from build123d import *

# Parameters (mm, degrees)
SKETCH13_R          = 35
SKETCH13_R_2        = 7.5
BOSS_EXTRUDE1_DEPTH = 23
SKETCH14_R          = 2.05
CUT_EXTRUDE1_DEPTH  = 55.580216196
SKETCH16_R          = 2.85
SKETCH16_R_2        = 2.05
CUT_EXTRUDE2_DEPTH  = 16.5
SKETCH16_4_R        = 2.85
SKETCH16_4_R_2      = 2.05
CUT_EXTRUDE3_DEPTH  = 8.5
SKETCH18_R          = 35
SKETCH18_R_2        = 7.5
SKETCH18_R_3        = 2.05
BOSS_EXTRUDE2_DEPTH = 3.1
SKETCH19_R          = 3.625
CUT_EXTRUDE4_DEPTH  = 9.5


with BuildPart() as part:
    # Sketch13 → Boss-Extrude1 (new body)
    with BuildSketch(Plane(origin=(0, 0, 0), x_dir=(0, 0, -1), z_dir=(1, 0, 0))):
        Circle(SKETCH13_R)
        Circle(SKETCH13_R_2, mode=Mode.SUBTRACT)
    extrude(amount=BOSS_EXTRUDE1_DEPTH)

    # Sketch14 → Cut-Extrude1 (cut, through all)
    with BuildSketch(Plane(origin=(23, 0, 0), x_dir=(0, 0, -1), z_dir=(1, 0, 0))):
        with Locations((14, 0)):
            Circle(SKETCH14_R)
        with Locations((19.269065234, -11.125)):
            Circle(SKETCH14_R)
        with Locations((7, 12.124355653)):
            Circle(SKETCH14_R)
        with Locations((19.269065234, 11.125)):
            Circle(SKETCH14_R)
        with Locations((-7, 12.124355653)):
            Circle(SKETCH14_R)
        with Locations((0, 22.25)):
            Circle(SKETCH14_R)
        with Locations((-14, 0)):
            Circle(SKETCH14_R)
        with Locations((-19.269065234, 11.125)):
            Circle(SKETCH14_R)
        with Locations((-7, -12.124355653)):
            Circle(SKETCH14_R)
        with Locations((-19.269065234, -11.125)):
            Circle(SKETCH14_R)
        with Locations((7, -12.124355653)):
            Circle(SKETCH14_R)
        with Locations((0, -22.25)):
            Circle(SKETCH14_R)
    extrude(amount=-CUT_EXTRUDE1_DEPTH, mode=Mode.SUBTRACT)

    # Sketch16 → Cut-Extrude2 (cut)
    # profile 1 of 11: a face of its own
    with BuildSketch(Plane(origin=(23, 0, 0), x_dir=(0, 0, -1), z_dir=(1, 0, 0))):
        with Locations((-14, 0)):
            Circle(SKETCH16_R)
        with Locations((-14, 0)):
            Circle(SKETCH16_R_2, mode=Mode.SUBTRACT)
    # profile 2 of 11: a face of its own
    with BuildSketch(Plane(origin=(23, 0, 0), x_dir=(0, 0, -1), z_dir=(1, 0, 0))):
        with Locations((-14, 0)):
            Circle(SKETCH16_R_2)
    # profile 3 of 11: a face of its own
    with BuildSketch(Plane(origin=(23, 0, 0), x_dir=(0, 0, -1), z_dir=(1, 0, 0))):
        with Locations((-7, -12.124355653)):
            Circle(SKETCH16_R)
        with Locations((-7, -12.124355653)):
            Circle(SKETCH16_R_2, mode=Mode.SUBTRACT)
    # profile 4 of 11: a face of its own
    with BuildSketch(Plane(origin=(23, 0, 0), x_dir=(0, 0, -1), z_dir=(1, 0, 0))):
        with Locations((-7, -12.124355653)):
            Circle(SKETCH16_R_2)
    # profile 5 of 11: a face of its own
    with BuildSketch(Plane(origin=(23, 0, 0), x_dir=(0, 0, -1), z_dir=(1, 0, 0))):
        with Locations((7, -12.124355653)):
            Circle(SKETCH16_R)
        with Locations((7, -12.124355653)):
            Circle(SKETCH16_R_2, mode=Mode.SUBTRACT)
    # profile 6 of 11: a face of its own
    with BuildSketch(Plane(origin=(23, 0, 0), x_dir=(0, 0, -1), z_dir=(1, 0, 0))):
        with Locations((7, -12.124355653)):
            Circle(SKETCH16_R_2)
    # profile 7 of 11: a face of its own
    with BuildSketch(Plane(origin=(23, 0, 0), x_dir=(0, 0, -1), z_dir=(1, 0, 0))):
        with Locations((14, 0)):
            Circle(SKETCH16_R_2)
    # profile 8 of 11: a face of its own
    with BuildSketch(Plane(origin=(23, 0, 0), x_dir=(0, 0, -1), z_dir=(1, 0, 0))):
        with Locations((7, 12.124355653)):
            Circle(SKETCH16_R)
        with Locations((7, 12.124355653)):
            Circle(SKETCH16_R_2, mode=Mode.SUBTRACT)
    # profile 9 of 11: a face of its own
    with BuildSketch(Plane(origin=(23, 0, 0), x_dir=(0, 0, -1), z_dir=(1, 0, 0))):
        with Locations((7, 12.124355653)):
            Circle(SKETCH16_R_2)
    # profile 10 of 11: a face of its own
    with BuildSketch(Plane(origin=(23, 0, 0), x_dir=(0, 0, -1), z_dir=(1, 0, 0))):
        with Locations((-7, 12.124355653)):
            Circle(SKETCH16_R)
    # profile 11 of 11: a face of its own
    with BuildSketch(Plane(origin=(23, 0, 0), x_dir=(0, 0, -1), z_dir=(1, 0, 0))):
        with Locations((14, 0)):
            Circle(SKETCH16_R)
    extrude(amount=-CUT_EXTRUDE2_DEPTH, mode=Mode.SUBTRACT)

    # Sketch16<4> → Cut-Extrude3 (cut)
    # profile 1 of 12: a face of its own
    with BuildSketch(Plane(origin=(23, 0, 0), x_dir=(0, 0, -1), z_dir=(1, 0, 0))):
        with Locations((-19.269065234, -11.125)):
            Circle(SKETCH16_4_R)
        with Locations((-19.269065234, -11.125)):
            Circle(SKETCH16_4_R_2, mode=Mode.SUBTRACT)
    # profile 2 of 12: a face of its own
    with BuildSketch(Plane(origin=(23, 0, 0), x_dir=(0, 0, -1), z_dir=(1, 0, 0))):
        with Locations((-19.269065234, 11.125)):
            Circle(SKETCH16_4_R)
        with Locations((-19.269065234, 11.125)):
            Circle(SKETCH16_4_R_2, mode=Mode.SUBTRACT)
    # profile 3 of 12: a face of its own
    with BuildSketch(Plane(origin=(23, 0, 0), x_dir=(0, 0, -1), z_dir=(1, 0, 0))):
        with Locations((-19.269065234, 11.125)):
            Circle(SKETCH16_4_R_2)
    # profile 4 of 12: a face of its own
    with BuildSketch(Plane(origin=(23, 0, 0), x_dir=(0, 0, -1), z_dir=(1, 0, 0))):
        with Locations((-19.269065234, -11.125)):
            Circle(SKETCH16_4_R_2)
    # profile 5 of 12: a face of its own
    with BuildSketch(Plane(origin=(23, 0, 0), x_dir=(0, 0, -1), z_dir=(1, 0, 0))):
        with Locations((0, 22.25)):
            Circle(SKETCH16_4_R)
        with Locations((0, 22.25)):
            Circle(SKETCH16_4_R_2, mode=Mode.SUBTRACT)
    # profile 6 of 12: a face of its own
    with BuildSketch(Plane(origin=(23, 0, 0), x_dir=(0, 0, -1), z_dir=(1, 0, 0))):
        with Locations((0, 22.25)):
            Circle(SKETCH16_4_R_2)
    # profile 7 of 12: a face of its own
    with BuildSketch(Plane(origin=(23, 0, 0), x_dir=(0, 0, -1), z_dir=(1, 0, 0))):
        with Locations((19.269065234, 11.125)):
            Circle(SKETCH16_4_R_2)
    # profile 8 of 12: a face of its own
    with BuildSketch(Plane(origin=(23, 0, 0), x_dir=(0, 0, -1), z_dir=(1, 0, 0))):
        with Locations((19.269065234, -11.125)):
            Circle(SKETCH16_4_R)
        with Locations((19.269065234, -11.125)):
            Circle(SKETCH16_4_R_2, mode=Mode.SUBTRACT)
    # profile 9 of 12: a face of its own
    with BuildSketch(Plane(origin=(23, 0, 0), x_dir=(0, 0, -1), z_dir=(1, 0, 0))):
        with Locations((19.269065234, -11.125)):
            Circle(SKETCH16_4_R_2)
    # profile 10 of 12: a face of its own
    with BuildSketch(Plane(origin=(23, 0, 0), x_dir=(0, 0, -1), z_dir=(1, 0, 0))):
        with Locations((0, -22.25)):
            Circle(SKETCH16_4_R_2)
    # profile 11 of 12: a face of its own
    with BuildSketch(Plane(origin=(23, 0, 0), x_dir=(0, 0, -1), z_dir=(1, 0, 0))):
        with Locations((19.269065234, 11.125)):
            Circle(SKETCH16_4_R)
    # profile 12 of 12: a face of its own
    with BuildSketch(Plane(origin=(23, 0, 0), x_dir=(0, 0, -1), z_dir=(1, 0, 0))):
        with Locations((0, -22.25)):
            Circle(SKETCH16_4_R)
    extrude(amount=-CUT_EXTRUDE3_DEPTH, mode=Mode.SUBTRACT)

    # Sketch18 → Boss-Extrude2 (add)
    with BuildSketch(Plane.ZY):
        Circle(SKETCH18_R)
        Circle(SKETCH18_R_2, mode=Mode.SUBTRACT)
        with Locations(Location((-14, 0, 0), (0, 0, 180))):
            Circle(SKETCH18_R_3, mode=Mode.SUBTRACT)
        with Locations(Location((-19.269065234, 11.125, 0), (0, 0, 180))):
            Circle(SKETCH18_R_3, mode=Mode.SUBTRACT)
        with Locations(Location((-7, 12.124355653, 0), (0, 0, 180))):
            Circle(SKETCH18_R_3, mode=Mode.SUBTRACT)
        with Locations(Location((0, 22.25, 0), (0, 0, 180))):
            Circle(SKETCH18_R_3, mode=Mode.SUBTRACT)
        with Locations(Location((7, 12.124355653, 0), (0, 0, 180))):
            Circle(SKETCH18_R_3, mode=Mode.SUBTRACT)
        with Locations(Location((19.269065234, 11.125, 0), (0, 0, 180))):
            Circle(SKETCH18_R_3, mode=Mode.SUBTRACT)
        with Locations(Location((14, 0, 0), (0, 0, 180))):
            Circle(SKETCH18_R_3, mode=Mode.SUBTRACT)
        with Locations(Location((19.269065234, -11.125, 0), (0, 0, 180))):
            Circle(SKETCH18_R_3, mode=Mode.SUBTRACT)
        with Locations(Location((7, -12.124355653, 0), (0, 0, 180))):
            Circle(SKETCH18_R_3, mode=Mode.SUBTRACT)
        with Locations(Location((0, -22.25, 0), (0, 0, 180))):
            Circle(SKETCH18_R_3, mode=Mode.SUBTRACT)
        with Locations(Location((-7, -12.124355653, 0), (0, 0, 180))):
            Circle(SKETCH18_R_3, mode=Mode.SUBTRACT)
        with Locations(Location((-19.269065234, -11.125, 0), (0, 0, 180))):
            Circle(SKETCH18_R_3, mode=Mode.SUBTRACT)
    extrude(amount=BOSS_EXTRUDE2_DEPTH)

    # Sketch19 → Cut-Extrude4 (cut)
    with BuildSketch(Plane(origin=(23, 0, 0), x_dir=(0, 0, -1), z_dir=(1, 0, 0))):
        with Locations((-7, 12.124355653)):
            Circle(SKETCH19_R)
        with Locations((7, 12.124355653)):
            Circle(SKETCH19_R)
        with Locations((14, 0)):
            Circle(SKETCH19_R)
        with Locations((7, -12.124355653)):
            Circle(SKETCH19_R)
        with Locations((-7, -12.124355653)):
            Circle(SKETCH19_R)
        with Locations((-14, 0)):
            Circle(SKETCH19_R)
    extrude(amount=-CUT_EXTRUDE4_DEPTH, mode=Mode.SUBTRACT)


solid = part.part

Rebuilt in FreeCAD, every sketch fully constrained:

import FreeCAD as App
import Part
import Sketcher

doc = App.newDocument("Part")
body = doc.addObject("PartDesign::Body", "Body")

# Sketch on YZ plane
sketch1 = body.newObject("Sketcher::SketchObject", "Sketch")
sketch1.AttachmentSupport = (doc.getObject("YZ_Plane"), [""])
sketch1.MapMode = "FlatFace"
sketch1.addGeometry([
    Part.Circle(App.Vector(0, 0, 0), App.Vector(0, 0, 1), 35),
    Part.Circle(App.Vector(0, 0, 0), App.Vector(0, 0, 1), 8),
], False)
sketch1.addConstraint([
    Sketcher.Constraint("Coincident", 0, 3, -1, 1),
    Sketcher.Constraint("Coincident", 1, 3, -1, 1),
    Sketcher.Constraint("Diameter", 0, 70.0),
    Sketcher.Constraint("Diameter", 1, 15.0),
])
pad1 = body.newObject("PartDesign::Pad", "Pad")
pad1.Profile = sketch1
pad1.Length = 23

# Sketch on YZ plane
sketch2 = body.newObject("Sketcher::SketchObject", "Sketch001")
sketch2.AttachmentSupport = (doc.getObject("YZ_Plane"), [""])
sketch2.MapMode = "FlatFace"
sketch2.AttachmentOffset = App.Placement(App.Vector(0, 0, 23), App.Rotation())
sketch2.addGeometry([
    Part.Circle(App.Vector(0, -14, 0), App.Vector(0, 0, 1), 2),  # 0
    Part.Circle(App.Vector(-11.1, -19.3, 0), App.Vector(0, 0, 1), 2),  # 1
    Part.Circle(App.Vector(12.1, -7, 0), App.Vector(0, 0, 1), 2),  # 2
    Part.Circle(App.Vector(11.1, -19.3, 0), App.Vector(0, 0, 1), 2),  # 3
    Part.Circle(App.Vector(12.1, 7, 0), App.Vector(0, 0, 1), 2),  # 4
    Part.Circle(App.Vector(22.2, 0, 0), App.Vector(0, 0, 1), 2),  # 5
    Part.Circle(App.Vector(0, 14, 0), App.Vector(0, 0, 1), 2),  # 6
    Part.Circle(App.Vector(11.1, 19.3, 0), App.Vector(0, 0, 1), 2),  # 7
    Part.Circle(App.Vector(-12.1, 7, 0), App.Vector(0, 0, 1), 2),  # 8
    Part.Circle(App.Vector(-11.1, 19.3, 0), App.Vector(0, 0, 1), 2),  # 9
    Part.Circle(App.Vector(-12.1, -7, 0), App.Vector(0, 0, 1), 2),  # 10
    Part.Circle(App.Vector(-22.2, 0, 0), App.Vector(0, 0, 1), 2),  # 11
], False)
sketch2.addConstraint([
    Sketcher.Constraint("Equal", 0, 1),
    Sketcher.Constraint("Equal", 1, 2),
    Sketcher.Constraint("Equal", 2, 3),
    Sketcher.Constraint("Equal", 3, 4),
    Sketcher.Constraint("Equal", 4, 5),
    Sketcher.Constraint("Equal", 5, 6),
    Sketcher.Constraint("Equal", 6, 7),
    Sketcher.Constraint("Equal", 7, 8),
    Sketcher.Constraint("Equal", 8, 9),
    Sketcher.Constraint("Equal", 9, 10),
    Sketcher.Constraint("Equal", 10, 11),
    Sketcher.Constraint("Symmetric", 0, 3, 6, 3, -1, 1),
    Sketcher.Constraint("Symmetric", 1, 3, 7, 3, -1, 1),
    Sketcher.Constraint("Symmetric", 2, 3, 8, 3, -1, 1),
    Sketcher.Constraint("Symmetric", 3, 3, 9, 3, -1, 1),
    Sketcher.Constraint("Symmetric", 4, 3, 10, 3, -1, 1),
    Sketcher.Constraint("Symmetric", 5, 3, 11, 3, -1, 1),
    Sketcher.Constraint("Symmetric", 1, 3, 3, 3, -2),
    Sketcher.Constraint("Symmetric", 4, 3, 8, 3, -2),
    Sketcher.Constraint("PointOnObject", 0, 3, -2),
    Sketcher.Constraint("PointOnObject", 5, 3, -1),
    Sketcher.Constraint("Diameter", 0, 4.1),
    Sketcher.Constraint("DistanceY", 0, 3, -1, 1, 14.0),
    Sketcher.Constraint("DistanceY", 2, 3, -1, 1, 7.0),
    Sketcher.Constraint("DistanceX", -1, 1, 5, 3, 22.25),
    Sketcher.Constraint("DistanceX", 1, 3, 3, 3, 22.25),
    Sketcher.Constraint("DistanceX", 8, 3, 4, 3, 24.248711),
    Sketcher.Constraint("DistanceY", 1, 3, -1, 1, 19.269065),
])
pocket1 = body.newObject("PartDesign::Pocket", "Pocket")
pocket1.Profile = sketch2
pocket1.Type = "ThroughAll"

# Sketch on YZ plane
sketch3 = body.newObject("Sketcher::SketchObject", "Sketch002")
sketch3.AttachmentSupport = (doc.getObject("YZ_Plane"), [""])
sketch3.MapMode = "FlatFace"
sketch3.AttachmentOffset = App.Placement(App.Vector(0, 0, 23), App.Rotation())
sketch3.addGeometry([
    Part.Circle(App.Vector(0, 14, 0), App.Vector(0, 0, 1), 2.9),  # 0
    Part.Circle(App.Vector(-12.1, 7, 0), App.Vector(0, 0, 1), 2.9),  # 1
    Part.Circle(App.Vector(-12.1, -7, 0), App.Vector(0, 0, 1), 2.9),  # 2
    Part.Circle(App.Vector(0, -14, 0), App.Vector(0, 0, 1), 2.9),  # 3
    Part.Circle(App.Vector(12.1, -7, 0), App.Vector(0, 0, 1), 2.9),  # 4
    Part.Circle(App.Vector(12.1, 7, 0), App.Vector(0, 0, 1), 2.9),  # 5
], False)
sketch3.addConstraint([
    Sketcher.Constraint("Equal", 0, 1),
    Sketcher.Constraint("Equal", 1, 2),
    Sketcher.Constraint("Equal", 2, 3),
    Sketcher.Constraint("Equal", 3, 4),
    Sketcher.Constraint("Equal", 4, 5),
    Sketcher.Constraint("Symmetric", 0, 3, 3, 3, -1, 1),
    Sketcher.Constraint("Symmetric", 1, 3, 4, 3, -1, 1),
    Sketcher.Constraint("Symmetric", 2, 3, 5, 3, -1, 1),
    Sketcher.Constraint("Symmetric", 2, 3, 4, 3, -2),
    Sketcher.Constraint("PointOnObject", 0, 3, -2),
    Sketcher.Constraint("Diameter", 0, 5.7),
    Sketcher.Constraint("DistanceY", -1, 1, 0, 3, 14.0),
    Sketcher.Constraint("DistanceY", -1, 1, 1, 3, 7.0),
    Sketcher.Constraint("DistanceX", 2, 3, 4, 3, 24.248711),
])
pocket2 = body.newObject("PartDesign::Pocket", "Pocket001")
pocket2.Profile = sketch3
pocket2.Length = 16.5

# Sketch on YZ plane
sketch4 = body.newObject("Sketcher::SketchObject", "Sketch003")
sketch4.AttachmentSupport = (doc.getObject("YZ_Plane"), [""])
sketch4.MapMode = "FlatFace"
sketch4.AttachmentOffset = App.Placement(App.Vector(0, 0, 23), App.Rotation())
sketch4.addGeometry([
    Part.Circle(App.Vector(-11.1, 19.3, 0), App.Vector(0, 0, 1), 2.9),  # 0
    Part.Circle(App.Vector(11.1, 19.3, 0), App.Vector(0, 0, 1), 2.9),  # 1
    Part.Circle(App.Vector(22.2, 0, 0), App.Vector(0, 0, 1), 2.9),  # 2
    Part.Circle(App.Vector(11.1, -19.3, 0), App.Vector(0, 0, 1), 2.9),  # 3
    Part.Circle(App.Vector(-11.1, -19.3, 0), App.Vector(0, 0, 1), 2.9),  # 4
    Part.Circle(App.Vector(-22.2, 0, 0), App.Vector(0, 0, 1), 2.9),  # 5
], False)
sketch4.addConstraint([
    Sketcher.Constraint("Equal", 0, 1),
    Sketcher.Constraint("Equal", 1, 2),
    Sketcher.Constraint("Equal", 2, 3),
    Sketcher.Constraint("Equal", 3, 4),
    Sketcher.Constraint("Equal", 4, 5),
    Sketcher.Constraint("Symmetric", 0, 3, 3, 3, -1, 1),
    Sketcher.Constraint("Symmetric", 1, 3, 4, 3, -1, 1),
    Sketcher.Constraint("Symmetric", 2, 3, 5, 3, -1, 1),
    Sketcher.Constraint("Symmetric", 0, 3, 1, 3, -2),
    Sketcher.Constraint("PointOnObject", 2, 3, -1),
    Sketcher.Constraint("Diameter", 0, 5.7),
    Sketcher.Constraint("DistanceX", 5, 3, 2, 3, 44.5),
    Sketcher.Constraint("DistanceX", 0, 3, 1, 3, 22.25),
    Sketcher.Constraint("DistanceY", 3, 3, 1, 3, 38.53813),
])
pocket3 = body.newObject("PartDesign::Pocket", "Pocket002")
pocket3.Profile = sketch4
pocket3.Length = 8.5

# Sketch on YZ plane
sketch5 = body.newObject("Sketcher::SketchObject", "Sketch004")
sketch5.AttachmentSupport = (doc.getObject("YZ_Plane"), [""])
sketch5.MapMode = "FlatFace"
sketch5.addGeometry([
    Part.Circle(App.Vector(0, 0, 0), App.Vector(0, 0, 1), 35),  # 0
    Part.Circle(App.Vector(-22.2, 0, 0), App.Vector(0, 0, 1), 2),  # 1
    Part.Circle(App.Vector(-11.1, -19.3, 0), App.Vector(0, 0, 1), 2),  # 2
    Part.Circle(App.Vector(-12.1, -7, 0), App.Vector(0, 0, 1), 2),  # 3
    Part.Circle(App.Vector(-12.1, 7, 0), App.Vector(0, 0, 1), 2),  # 4
    Part.Circle(App.Vector(-11.1, 19.3, 0), App.Vector(0, 0, 1), 2),  # 5
    Part.Circle(App.Vector(0, -14, 0), App.Vector(0, 0, 1), 2),  # 6
    Part.Circle(App.Vector(11.1, -19.3, 0), App.Vector(0, 0, 1), 2),  # 7
    Part.Circle(App.Vector(0, 0, 0), App.Vector(0, 0, 1), 7.5),  # 8
    Part.Circle(App.Vector(12.1, -7, 0), App.Vector(0, 0, 1), 2),  # 9
    Part.Circle(App.Vector(22.2, 0, 0), App.Vector(0, 0, 1), 2),  # 10
    Part.Circle(App.Vector(12.1, 7, 0), App.Vector(0, 0, 1), 2),  # 11
    Part.Circle(App.Vector(0, 14, 0), App.Vector(0, 0, 1), 2),  # 12
    Part.Circle(App.Vector(11.1, 19.3, 0), App.Vector(0, 0, 1), 2),  # 13
], False)
sketch5.addConstraint([
    Sketcher.Constraint("Coincident", 0, 3, -1, 1),
    Sketcher.Constraint("Coincident", 8, 3, -1, 1),
    Sketcher.Constraint("Equal", 1, 2),
    Sketcher.Constraint("Equal", 2, 3),
    Sketcher.Constraint("Equal", 3, 4),
    Sketcher.Constraint("Equal", 4, 5),
    Sketcher.Constraint("Equal", 5, 6),
    Sketcher.Constraint("Equal", 6, 7),
    Sketcher.Constraint("Equal", 7, 9),
    Sketcher.Constraint("Equal", 9, 10),
    Sketcher.Constraint("Equal", 10, 11),
    Sketcher.Constraint("Equal", 11, 12),
    Sketcher.Constraint("Equal", 12, 13),
    Sketcher.Constraint("Symmetric", 5, 3, 7, 3, -1, 1),
    Sketcher.Constraint("Symmetric", 4, 3, 9, 3, -1, 1),
    Sketcher.Constraint("Symmetric", 1, 3, 10, 3, -1, 1),
    Sketcher.Constraint("Symmetric", 3, 3, 11, 3, -1, 1),
    Sketcher.Constraint("Symmetric", 6, 3, 12, 3, -1, 1),
    Sketcher.Constraint("Symmetric", 2, 3, 13, 3, -1, 1),
    Sketcher.Constraint("Symmetric", 2, 3, 7, 3, -2),
    Sketcher.Constraint("Symmetric", 3, 3, 9, 3, -2),
    Sketcher.Constraint("PointOnObject", 1, 3, -1),
    Sketcher.Constraint("PointOnObject", 6, 3, -2),
    Sketcher.Constraint("Diameter", 0, 70.0),
    Sketcher.Constraint("Diameter", 8, 15.0),
    Sketcher.Constraint("Diameter", 1, 4.1),
    Sketcher.Constraint("DistanceY", 3, 3, -1, 1, 7.0),
    Sketcher.Constraint("DistanceY", 6, 3, -1, 1, 14.0),
    Sketcher.Constraint("DistanceX", 1, 3, -1, 1, 22.25),
    Sketcher.Constraint("DistanceX", 2, 3, 7, 3, 22.25),
    Sketcher.Constraint("DistanceY", 2, 3, 5, 3, 38.53813),
    Sketcher.Constraint("DistanceX", 3, 3, 9, 3, 24.248711),
])
pad2 = body.newObject("PartDesign::Pad", "Pad001")
pad2.Profile = sketch5
pad2.Length = 3.1
pad2.Reversed = True

# Sketch on YZ plane
sketch6 = body.newObject("Sketcher::SketchObject", "Sketch005")
sketch6.AttachmentSupport = (doc.getObject("YZ_Plane"), [""])
sketch6.MapMode = "FlatFace"
sketch6.AttachmentOffset = App.Placement(App.Vector(0, 0, 23), App.Rotation())
sketch6.addGeometry([
    Part.Circle(App.Vector(12.1, 7, 0), App.Vector(0, 0, 1), 3.6),  # 0
    Part.Circle(App.Vector(12.1, -7, 0), App.Vector(0, 0, 1), 3.6),  # 1
    Part.Circle(App.Vector(0, -14, 0), App.Vector(0, 0, 1), 3.6),  # 2
    Part.Circle(App.Vector(-12.1, -7, 0), App.Vector(0, 0, 1), 3.6),  # 3
    Part.Circle(App.Vector(-12.1, 7, 0), App.Vector(0, 0, 1), 3.6),  # 4
    Part.Circle(App.Vector(0, 14, 0), App.Vector(0, 0, 1), 3.6),  # 5
], False)
sketch6.addConstraint([
    Sketcher.Constraint("Equal", 0, 1),
    Sketcher.Constraint("Equal", 1, 2),
    Sketcher.Constraint("Equal", 2, 3),
    Sketcher.Constraint("Equal", 3, 4),
    Sketcher.Constraint("Equal", 4, 5),
    Sketcher.Constraint("Symmetric", 0, 3, 3, 3, -1, 1),
    Sketcher.Constraint("Symmetric", 1, 3, 4, 3, -1, 1),
    Sketcher.Constraint("Symmetric", 2, 3, 5, 3, -1, 1),
    Sketcher.Constraint("Symmetric", 1, 3, 3, 3, -2),
    Sketcher.Constraint("PointOnObject", 2, 3, -2),
    Sketcher.Constraint("Diameter", 0, 7.25),
    Sketcher.Constraint("DistanceY", -1, 1, 0, 3, 7.0),
    Sketcher.Constraint("DistanceY", 2, 3, -1, 1, 14.0),
    Sketcher.Constraint("DistanceX", 3, 3, 1, 3, 24.248711),
])
pocket4 = body.newObject("PartDesign::Pocket", "Pocket003")
pocket4.Profile = sketch6
pocket4.Length = 9.5

doc.recompute()
